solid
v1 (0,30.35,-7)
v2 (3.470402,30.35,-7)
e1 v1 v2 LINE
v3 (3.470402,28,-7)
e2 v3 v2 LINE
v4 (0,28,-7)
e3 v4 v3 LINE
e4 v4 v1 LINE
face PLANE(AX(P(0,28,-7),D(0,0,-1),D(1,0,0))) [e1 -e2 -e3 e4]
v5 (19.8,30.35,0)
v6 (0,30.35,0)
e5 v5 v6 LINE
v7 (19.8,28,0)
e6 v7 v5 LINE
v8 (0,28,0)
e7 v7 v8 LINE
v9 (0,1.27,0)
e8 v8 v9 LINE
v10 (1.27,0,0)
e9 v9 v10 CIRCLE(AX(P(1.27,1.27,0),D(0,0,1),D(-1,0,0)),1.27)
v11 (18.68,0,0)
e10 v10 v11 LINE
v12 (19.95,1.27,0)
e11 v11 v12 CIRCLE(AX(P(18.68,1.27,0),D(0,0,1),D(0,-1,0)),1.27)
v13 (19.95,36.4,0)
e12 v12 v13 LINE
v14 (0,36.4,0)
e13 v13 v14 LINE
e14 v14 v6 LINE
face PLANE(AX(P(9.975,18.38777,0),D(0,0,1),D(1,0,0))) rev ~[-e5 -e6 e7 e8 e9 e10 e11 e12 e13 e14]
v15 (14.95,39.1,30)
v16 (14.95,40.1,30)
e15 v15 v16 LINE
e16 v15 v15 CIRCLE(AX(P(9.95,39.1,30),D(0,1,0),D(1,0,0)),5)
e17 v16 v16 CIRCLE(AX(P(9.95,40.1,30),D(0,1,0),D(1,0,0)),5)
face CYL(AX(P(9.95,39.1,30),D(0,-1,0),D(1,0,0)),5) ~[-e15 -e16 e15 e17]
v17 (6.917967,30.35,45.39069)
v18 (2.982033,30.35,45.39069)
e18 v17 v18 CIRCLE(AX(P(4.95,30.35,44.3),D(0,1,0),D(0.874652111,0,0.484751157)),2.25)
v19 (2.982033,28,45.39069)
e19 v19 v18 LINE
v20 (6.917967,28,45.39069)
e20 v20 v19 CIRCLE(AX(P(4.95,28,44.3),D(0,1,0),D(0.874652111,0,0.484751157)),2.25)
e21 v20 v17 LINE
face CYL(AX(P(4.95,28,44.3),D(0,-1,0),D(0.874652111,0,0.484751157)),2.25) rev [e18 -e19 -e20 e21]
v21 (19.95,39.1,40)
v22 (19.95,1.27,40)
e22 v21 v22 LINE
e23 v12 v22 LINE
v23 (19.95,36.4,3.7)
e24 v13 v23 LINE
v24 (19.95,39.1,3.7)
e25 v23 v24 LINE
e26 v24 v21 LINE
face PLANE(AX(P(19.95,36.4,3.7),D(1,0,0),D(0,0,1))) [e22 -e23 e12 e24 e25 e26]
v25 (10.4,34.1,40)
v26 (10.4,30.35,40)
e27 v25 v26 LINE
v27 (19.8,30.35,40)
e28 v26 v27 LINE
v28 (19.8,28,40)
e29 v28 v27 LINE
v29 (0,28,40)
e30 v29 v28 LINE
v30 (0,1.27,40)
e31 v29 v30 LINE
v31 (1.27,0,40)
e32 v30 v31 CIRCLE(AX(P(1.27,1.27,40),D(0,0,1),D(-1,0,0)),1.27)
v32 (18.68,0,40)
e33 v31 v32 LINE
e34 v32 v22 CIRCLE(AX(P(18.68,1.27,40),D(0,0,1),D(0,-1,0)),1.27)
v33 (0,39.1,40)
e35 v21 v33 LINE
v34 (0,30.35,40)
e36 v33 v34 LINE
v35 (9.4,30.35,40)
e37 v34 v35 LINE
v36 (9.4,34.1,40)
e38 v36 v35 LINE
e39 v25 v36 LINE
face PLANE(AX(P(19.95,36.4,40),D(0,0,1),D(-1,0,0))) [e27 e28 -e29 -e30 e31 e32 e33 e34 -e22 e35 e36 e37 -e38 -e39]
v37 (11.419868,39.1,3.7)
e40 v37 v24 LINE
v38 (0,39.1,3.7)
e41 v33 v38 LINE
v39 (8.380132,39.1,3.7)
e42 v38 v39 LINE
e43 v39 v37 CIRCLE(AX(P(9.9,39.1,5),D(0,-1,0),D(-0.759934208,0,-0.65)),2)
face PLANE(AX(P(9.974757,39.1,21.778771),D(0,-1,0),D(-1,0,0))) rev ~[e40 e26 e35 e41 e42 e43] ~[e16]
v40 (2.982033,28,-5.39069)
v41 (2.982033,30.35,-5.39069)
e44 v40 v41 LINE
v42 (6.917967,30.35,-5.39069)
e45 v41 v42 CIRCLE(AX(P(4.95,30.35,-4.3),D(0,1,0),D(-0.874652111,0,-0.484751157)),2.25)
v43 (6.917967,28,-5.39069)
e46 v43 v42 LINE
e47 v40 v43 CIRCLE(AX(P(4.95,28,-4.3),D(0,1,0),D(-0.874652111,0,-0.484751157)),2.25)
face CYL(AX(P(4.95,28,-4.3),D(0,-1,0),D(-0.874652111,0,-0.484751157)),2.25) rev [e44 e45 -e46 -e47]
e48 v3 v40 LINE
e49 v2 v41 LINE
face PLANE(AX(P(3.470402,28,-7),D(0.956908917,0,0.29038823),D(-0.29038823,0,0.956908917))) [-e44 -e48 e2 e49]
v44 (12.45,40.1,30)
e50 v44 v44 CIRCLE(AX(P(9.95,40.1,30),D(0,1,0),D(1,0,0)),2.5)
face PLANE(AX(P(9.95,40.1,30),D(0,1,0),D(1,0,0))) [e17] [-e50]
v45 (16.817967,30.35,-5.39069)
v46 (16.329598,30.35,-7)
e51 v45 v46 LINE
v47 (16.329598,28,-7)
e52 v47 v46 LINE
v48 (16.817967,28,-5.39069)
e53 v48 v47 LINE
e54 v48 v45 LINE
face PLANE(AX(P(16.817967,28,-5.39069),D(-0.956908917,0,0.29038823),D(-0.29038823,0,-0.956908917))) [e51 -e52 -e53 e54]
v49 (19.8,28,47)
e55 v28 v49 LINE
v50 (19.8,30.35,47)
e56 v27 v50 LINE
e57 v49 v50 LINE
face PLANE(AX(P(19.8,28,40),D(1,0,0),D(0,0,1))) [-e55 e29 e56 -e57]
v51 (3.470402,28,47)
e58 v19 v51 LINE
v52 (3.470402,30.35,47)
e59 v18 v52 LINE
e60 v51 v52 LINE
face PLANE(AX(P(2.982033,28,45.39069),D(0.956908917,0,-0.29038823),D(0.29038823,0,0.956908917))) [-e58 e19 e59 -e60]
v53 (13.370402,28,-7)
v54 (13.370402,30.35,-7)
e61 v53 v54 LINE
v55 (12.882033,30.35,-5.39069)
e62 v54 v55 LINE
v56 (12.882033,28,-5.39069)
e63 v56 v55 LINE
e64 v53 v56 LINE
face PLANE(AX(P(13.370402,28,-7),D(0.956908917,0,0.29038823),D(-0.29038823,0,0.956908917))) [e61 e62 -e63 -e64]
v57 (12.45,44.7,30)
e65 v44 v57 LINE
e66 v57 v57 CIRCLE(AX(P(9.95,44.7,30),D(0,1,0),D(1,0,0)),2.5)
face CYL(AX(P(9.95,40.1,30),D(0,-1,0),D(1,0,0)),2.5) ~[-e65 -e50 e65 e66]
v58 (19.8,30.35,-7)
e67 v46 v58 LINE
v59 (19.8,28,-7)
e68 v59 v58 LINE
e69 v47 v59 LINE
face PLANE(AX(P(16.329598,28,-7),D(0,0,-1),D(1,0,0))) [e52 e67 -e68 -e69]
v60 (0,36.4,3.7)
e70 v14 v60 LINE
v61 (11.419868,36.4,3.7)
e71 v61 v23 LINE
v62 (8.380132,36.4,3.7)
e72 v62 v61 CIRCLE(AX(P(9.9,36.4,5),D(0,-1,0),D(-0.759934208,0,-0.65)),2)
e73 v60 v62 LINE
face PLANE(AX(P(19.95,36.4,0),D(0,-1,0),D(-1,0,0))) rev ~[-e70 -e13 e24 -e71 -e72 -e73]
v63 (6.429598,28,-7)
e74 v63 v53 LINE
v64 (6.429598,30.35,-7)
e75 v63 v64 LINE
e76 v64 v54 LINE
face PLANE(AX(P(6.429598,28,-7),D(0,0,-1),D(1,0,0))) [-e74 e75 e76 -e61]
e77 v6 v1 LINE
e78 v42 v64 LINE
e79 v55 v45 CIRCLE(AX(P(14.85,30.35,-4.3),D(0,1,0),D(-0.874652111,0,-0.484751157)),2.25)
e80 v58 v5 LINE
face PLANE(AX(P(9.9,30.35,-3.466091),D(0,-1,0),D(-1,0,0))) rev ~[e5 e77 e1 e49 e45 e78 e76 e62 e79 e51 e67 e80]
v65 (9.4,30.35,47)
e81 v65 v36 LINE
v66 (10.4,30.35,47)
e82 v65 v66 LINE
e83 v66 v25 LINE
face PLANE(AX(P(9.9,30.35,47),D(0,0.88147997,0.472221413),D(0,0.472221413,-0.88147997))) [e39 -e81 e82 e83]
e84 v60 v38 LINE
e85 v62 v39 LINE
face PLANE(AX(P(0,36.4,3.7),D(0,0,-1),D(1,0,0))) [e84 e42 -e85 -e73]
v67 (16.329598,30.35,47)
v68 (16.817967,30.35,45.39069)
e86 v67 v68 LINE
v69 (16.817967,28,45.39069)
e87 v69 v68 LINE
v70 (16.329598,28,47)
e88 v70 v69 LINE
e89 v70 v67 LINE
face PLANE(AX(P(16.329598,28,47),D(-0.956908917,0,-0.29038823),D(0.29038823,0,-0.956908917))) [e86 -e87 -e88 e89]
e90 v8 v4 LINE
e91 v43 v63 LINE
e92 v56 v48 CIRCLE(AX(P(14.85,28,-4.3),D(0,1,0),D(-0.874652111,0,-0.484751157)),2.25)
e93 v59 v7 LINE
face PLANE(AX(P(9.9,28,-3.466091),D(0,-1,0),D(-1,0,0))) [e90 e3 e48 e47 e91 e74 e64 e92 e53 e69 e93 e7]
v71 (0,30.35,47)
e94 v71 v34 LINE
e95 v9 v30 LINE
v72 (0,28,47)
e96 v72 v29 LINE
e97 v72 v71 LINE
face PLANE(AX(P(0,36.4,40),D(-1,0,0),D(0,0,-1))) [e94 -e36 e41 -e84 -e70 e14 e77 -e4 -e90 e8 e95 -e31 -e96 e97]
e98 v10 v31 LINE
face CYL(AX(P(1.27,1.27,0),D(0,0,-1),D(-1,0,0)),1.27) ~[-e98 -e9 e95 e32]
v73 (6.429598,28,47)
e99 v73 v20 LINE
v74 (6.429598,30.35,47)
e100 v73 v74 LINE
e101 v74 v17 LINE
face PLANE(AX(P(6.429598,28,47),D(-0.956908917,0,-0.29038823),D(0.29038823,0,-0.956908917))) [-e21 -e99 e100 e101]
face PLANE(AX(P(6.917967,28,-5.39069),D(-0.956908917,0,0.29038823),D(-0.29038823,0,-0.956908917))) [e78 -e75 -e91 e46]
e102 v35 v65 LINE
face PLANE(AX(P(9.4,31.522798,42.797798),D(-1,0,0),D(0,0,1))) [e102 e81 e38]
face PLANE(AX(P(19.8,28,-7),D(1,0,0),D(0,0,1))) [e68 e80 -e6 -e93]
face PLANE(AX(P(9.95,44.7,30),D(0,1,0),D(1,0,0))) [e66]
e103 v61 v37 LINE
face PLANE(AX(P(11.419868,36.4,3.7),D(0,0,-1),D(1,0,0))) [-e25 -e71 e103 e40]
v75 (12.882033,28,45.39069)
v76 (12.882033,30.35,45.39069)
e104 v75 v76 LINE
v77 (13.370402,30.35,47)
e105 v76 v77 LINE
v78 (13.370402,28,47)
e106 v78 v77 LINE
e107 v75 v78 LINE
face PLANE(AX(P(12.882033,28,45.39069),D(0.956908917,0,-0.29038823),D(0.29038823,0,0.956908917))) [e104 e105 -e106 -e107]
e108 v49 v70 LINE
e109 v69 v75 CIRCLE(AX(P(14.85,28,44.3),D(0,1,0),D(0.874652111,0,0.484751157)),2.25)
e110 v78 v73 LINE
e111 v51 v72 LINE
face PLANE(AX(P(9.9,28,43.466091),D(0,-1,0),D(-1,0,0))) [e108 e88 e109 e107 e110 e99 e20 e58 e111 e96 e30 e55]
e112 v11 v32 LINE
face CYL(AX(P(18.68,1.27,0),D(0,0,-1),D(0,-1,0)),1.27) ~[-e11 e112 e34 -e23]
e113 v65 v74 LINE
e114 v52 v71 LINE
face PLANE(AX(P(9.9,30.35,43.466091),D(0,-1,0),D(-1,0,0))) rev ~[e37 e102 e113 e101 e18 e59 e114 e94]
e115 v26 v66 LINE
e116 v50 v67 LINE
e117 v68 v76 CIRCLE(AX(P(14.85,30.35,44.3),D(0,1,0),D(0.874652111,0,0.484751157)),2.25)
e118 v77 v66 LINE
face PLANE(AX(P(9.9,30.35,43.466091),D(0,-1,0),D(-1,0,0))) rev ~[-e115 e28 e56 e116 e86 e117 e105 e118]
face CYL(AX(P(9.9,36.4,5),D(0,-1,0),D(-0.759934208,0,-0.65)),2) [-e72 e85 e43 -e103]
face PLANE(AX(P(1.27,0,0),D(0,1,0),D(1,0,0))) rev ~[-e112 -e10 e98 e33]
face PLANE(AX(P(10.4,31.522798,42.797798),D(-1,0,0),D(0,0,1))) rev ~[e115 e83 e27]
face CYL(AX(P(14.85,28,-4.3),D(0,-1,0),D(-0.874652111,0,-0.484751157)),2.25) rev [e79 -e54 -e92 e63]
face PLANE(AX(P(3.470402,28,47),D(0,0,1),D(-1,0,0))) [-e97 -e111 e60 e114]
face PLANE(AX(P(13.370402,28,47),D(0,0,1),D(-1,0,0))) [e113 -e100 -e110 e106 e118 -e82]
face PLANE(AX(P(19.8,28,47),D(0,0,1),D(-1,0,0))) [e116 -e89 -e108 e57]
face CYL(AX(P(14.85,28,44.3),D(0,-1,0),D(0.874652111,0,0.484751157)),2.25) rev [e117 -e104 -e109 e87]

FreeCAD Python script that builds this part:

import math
import FreeCAD as App
import Part
import Sketcher

doc = App.newDocument("Part")
body = doc.addObject("PartDesign::Body", "Body")

# Sketch on XY plane
sketch1 = body.newObject("Sketcher::SketchObject", "Sketch")
sketch1.AttachmentSupport = (doc.getObject("XY_Plane"), [""])
sketch1.MapMode = "FlatFace"
sketch1.addGeometry([
    Part.LineSegment(App.Vector(1.3, 0, 0), App.Vector(18.7, 0, 0)),  # 0
    Part.ArcOfCircle(Part.Circle(App.Vector(18.7, 1.3, 0), App.Vector(0, 0, 1), 1.3), math.radians(-90), math.radians(0)),  # 1
    Part.LineSegment(App.Vector(19.9, 1.3, 0), App.Vector(19.9, 36.4, 0)),  # 2
    Part.LineSegment(App.Vector(19.9, 36.4, 0), App.Vector(0, 36.4, 0)),  # 3
    Part.LineSegment(App.Vector(0, 36.4, 0), App.Vector(0, 1.3, 0)),  # 4
    Part.ArcOfCircle(Part.Circle(App.Vector(1.3, 1.3, 0), App.Vector(0, 0, 1), 1.3), math.radians(180), math.radians(270)),  # 5
], False)
sketch1.addConstraint([
    Sketcher.Constraint("Tangent", 0, 2, 1, 1),
    Sketcher.Constraint("Tangent", 1, 2, 2, 1),
    Sketcher.Constraint("Coincident", 2, 2, 3, 1),
    Sketcher.Constraint("Coincident", 3, 2, 4, 1),
    Sketcher.Constraint("Tangent", 4, 2, 5, 1),
    Sketcher.Constraint("Tangent", 5, 2, 0, 1),
    Sketcher.Constraint("Horizontal", 0),
    Sketcher.Constraint("Vertical", 2),
    Sketcher.Constraint("Horizontal", 3),
    Sketcher.Constraint("Vertical", 4),
    Sketcher.Constraint("Equal", 1, 5),
    Sketcher.Constraint("PointOnObject", 0, 2, -1),
    Sketcher.Constraint("PointOnObject", 3, 2, -2),
    Sketcher.Constraint("Radius", 1, 1.27),
    Sketcher.Constraint("DistanceX", 0, 1, 0, 2, 17.41),
    Sketcher.Constraint("DistanceY", 2, 1, 2, 2, 35.13),
])
pad1 = body.newObject("PartDesign::Pad", "Pad")
pad1.Profile = sketch1
pad1.Length = 40

# Sketch on XZ plane
sketch2 = body.newObject("Sketcher::SketchObject", "Sketch001")
sketch2.AttachmentSupport = (doc.getObject("XZ_Plane"), [""])
sketch2.MapMode = "FlatFace"
sketch2.AttachmentOffset = App.Placement(App.Vector(0, 0, -28), App.Rotation())
sketch2.addGeometry([
    Part.LineSegment(App.Vector(0, 0, 0), App.Vector(0, -7, 0)),  # 0
    Part.LineSegment(App.Vector(0, -7, 0), App.Vector(3.5, -7, 0)),  # 1
    Part.LineSegment(App.Vector(3.5, -7, 0), App.Vector(3, -5.4, 0)),  # 2
    Part.ArcOfCircle(Part.Circle(App.Vector(5, -4.3, 0), App.Vector(0, 0, 1), 2.2), math.radians(-29), math.radians(209)),  # 3
    Part.LineSegment(App.Vector(6.9, -5.4, 0), App.Vector(6.4, -7, 0)),  # 4
    Part.LineSegment(App.Vector(6.4, -7, 0), App.Vector(13.4, -7, 0)),  # 5
    Part.LineSegment(App.Vector(13.4, -7, 0), App.Vector(12.9, -5.4, 0)),  # 6
    Part.ArcOfCircle(Part.Circle(App.Vector(14.8, -4.3, 0), App.Vector(0, 0, 1), 2.2), math.radians(-29), math.radians(209)),  # 7
    Part.LineSegment(App.Vector(16.8, -5.4, 0), App.Vector(16.3, -7, 0)),  # 8
    Part.LineSegment(App.Vector(16.3, -7, 0), App.Vector(19.8, -7, 0)),  # 9
    Part.LineSegment(App.Vector(19.8, -7, 0), App.Vector(19.8, 0, 0)),  # 10
    Part.LineSegment(App.Vector(19.8, 0, 0), App.Vector(0, 0, 0)),  # 11
    Part.LineSegment(App.Vector(16.3, 47, 0), App.Vector(16.8, 45.4, 0)),  # 12
    Part.ArcOfCircle(Part.Circle(App.Vector(14.8, 44.3, 0), App.Vector(0, 0, 1), 2.2), math.radians(151), math.radians(389)),  # 13
    Part.LineSegment(App.Vector(12.9, 45.4, 0), App.Vector(13.4, 47, 0)),  # 14
    Part.LineSegment(App.Vector(13.4, 47, 0), App.Vector(6.4, 47, 0)),  # 15
    Part.LineSegment(App.Vector(6.4, 47, 0), App.Vector(6.9, 45.4, 0)),  # 16
    Part.ArcOfCircle(Part.Circle(App.Vector(5, 44.3, 0), App.Vector(0, 0, 1), 2.2), math.radians(151), math.radians(389)),  # 17
    Part.LineSegment(App.Vector(3, 45.4, 0), App.Vector(3.5, 47, 0)),  # 18
    Part.LineSegment(App.Vector(3.5, 47, 0), App.Vector(0, 47, 0)),  # 19
    Part.LineSegment(App.Vector(0, 47, 0), App.Vector(0, 40, 0)),  # 20
    Part.LineSegment(App.Vector(0, 40, 0), App.Vector(19.8, 40, 0)),  # 21
    Part.LineSegment(App.Vector(19.8, 40, 0), App.Vector(19.8, 47, 0)),  # 22
    Part.LineSegment(App.Vector(19.8, 47, 0), App.Vector(16.3, 47, 0)),  # 23
], False)
sketch2.addConstraint([
    Sketcher.Constraint("Coincident", 0, 2, 1, 1),
    Sketcher.Constraint("Coincident", 1, 2, 2, 1),
    Sketcher.Constraint("Coincident", 2, 2, 3, 2),
    Sketcher.Constraint("Coincident", 3, 1, 4, 1),
    Sketcher.Constraint("Coincident", 4, 2, 5, 1),
    Sketcher.Constraint("Coincident", 5, 2, 6, 1),
    Sketcher.Constraint("Coincident", 6, 2, 7, 2),
    Sketcher.Constraint("Coincident", 7, 1, 8, 1),
    Sketcher.Constraint("Coincident", 8, 2, 9, 1),
    Sketcher.Constraint("Coincident", 9, 2, 10, 1),
    Sketcher.Constraint("Coincident", 10, 2, 11, 1),
    Sketcher.Constraint("Coincident", 11, 2, 0, 1),
    Sketcher.Constraint("Coincident", 12, 2, 13, 2),
    Sketcher.Constraint("Coincident", 13, 1, 14, 1),
    Sketcher.Constraint("Coincident", 14, 2, 15, 1),
    Sketcher.Constraint("Coincident", 15, 2, 16, 1),
    Sketcher.Constraint("Coincident", 16, 2, 17, 2),
    Sketcher.Constraint("Coincident", 17, 1, 18, 1),
    Sketcher.Constraint("Coincident", 18, 2, 19, 1),
    Sketcher.Constraint("Coincident", 19, 2, 20, 1),
    Sketcher.Constraint("Coincident", 20, 2, 21, 1),
    Sketcher.Constraint("Coincident", 21, 2, 22, 1),
    Sketcher.Constraint("Coincident", 22, 2, 23, 1),
    Sketcher.Constraint("Coincident", 23, 2, 12, 1),
    Sketcher.Constraint("Vertical", 0),
    Sketcher.Constraint("Horizontal", 1),
    Sketcher.Constraint("Horizontal", 5),
    Sketcher.Constraint("Horizontal", 9),
    Sketcher.Constraint("Vertical", 10),
    Sketcher.Constraint("Horizontal", 11),
    Sketcher.Constraint("Horizontal", 15),
    Sketcher.Constraint("Horizontal", 19),
    Sketcher.Constraint("Vertical", 20),
    Sketcher.Constraint("Horizontal", 21),
    Sketcher.Constraint("Vertical", 22),
    Sketcher.Constraint("Horizontal", 23),
    Sketcher.Constraint("Coincident", 11, 2, -1, 1),
    Sketcher.Constraint("Equal", 3, 7),
    Sketcher.Constraint("Equal", 7, 13),
    Sketcher.Constraint("Equal", 13, 17),
    Sketcher.Constraint("PointOnObject", 19, 2, -2),
    Sketcher.Constraint("Parallel", 2, 6),
    Sketcher.Constraint("Parallel", 4, 8),
    Sketcher.Constraint("Parallel", 6, 12),
    Sketcher.Constraint("Parallel", 8, 14),
    Sketcher.Constraint("Parallel", 12, 16),
    Sketcher.Constraint("Parallel", 14, 18),
    Sketcher.Constraint("Horizontal", 3, 3, 7, 3),
    Sketcher.Constraint("Horizontal", 13, 3, 17, 3),
    Sketcher.Constraint("Horizontal", 2, 2, 3, 1),
    Sketcher.Constraint("Horizontal", 1, 2, 4, 2),
    Sketcher.Constraint("Horizontal", 3, 1, 6, 2),
    Sketcher.Constraint("Horizontal", 6, 2, 7, 1),
    Sketcher.Constraint("Horizontal", 5, 2, 8, 2),
    Sketcher.Constraint("Horizontal", 12, 2, 13, 1),
    Sketcher.Constraint("Horizontal", 13, 1, 16, 2),
    Sketcher.Constraint("Horizontal", 16, 2, 17, 1),
    Sketcher.Constraint("Horizontal", 15, 2, 18, 2),
    Sketcher.Constraint("Horizontal", 19, 2, 22, 2),
    Sketcher.Constraint("Vertical", 7, 3, 13, 3),
    Sketcher.Constraint("Vertical", 3, 3, 17, 3),
    Sketcher.Constraint("Vertical", 7, 1, 12, 2),
    Sketcher.Constraint("Vertical", 5, 2, 14, 2),
    Sketcher.Constraint("Vertical", 4, 2, 15, 2),
    Sketcher.Constraint("Vertical", 10, 2, 21, 2),
    Sketcher.Constraint("Equal", 1, 9),
    Sketcher.Constraint("Equal", 10, 20),
    Sketcher.Constraint("DistanceY", 0, 2, 0, 1, 7.0),
    Sketcher.Constraint("Radius", 3, 2.25),
    Sketcher.Constraint("DistanceX", 11, 2, 11, 1, 19.8),
    Sketcher.Constraint("DistanceY", -1, 1, 14, 2, 47.0),
    Sketcher.Constraint("DistanceY", 3, 3, -1, 1, 4.3),
    Sketcher.Constraint("DistanceX", 3, 3, 7, 3, 9.9),
    Sketcher.Constraint("DistanceX", 1, 1, 1, 2, 3.470402),
    Sketcher.Constraint("Distance", 2, 1.68178),
])
pad2 = body.newObject("PartDesign::Pad", "Pad001")
pad2.Profile = sketch2
pad2.Length = 2.35
pad2.Reversed = True

# Sketch on XZ plane
sketch3 = body.newObject("Sketcher::SketchObject", "Sketch002")
sketch3.AttachmentSupport = (doc.getObject("XZ_Plane"), [""])
sketch3.MapMode = "FlatFace"
sketch3.AttachmentOffset = App.Placement(App.Vector(0, 0, -36.4), App.Rotation())
sketch3.addGeometry([
    Part.LineSegment(App.Vector(19.9, 40, 0), App.Vector(19.9, 3.7, 0)),  # 0
    Part.LineSegment(App.Vector(19.9, 3.7, 0), App.Vector(11.4, 3.7, 0)),  # 1
    Part.ArcOfCircle(Part.Circle(App.Vector(9.9, 5, 0), App.Vector(0, 0, 1), 2), math.radians(-139), math.radians(-41)),  # 2
    Part.LineSegment(App.Vector(8.4, 3.7, 0), App.Vector(0, 3.7, 0)),  # 3
    Part.LineSegment(App.Vector(0, 3.7, 0), App.Vector(0, 40, 0)),  # 4
    Part.LineSegment(App.Vector(0, 40, 0), App.Vector(19.9, 40, 0)),  # 5
], False)
sketch3.addConstraint([
    Sketcher.Constraint("Coincident", 0, 2, 1, 1),
    Sketcher.Constraint("Coincident", 1, 2, 2, 2),
    Sketcher.Constraint("Coincident", 2, 1, 3, 1),
    Sketcher.Constraint("Coincident", 3, 2, 4, 1),
    Sketcher.Constraint("Coincident", 4, 2, 5, 1),
    Sketcher.Constraint("Coincident", 5, 2, 0, 1),
    Sketcher.Constraint("Vertical", 0),
    Sketcher.Constraint("Horizontal", 1),
    Sketcher.Constraint("Horizontal", 3),
    Sketcher.Constraint("Vertical", 4),
    Sketcher.Constraint("Horizontal", 5),
    Sketcher.Constraint("PointOnObject", 3, 2, -2),
    Sketcher.Constraint("Horizontal", 1, 2, 2, 1),
    Sketcher.Constraint("Radius", 2, 2.0),
    Sketcher.Constraint("DistanceY", 0, 2, 0, 1, 36.3),
    Sketcher.Constraint("DistanceY", -1, 1, 2, 3, 5.0),
    Sketcher.Constraint("DistanceY", -1, 1, 4, 2, 40.0),
    Sketcher.Constraint("DistanceX", 5, 1, 5, 2, 19.95),
    Sketcher.Constraint("DistanceX", -1, 1, 2, 3, 9.9),
])
pad3 = body.newObject("PartDesign::Pad", "Pad002")
pad3.Profile = sketch3
pad3.Length = 2.7
pad3.Reversed = True

# Sketch on XZ plane
sketch4 = body.newObject("Sketcher::SketchObject", "Sketch003")
sketch4.AttachmentSupport = (doc.getObject("XZ_Plane"), [""])
sketch4.MapMode = "FlatFace"
sketch4.AttachmentOffset = App.Placement(App.Vector(0, 0, -39.1), App.Rotation())
sketch4.addGeometry(Part.Circle(App.Vector(10, 30, 0), App.Vector(0, 0, 1), 5), False)
sketch4.addConstraint([
    Sketcher.Constraint("Diameter", 0, 10.0),
    Sketcher.Constraint("DistanceY", -1, 1, 0, 3, 30.0),
    Sketcher.Constraint("DistanceX", -1, 1, 0, 3, 9.95),
])
pad4 = body.newObject("PartDesign::Pad", "Pad003")
pad4.Profile = sketch4
pad4.Length = 1
pad4.Reversed = True

# Sketch on XZ plane
sketch5 = body.newObject("Sketcher::SketchObject", "Sketch004")
sketch5.AttachmentSupport = (doc.getObject("XZ_Plane"), [""])
sketch5.MapMode = "FlatFace"
sketch5.AttachmentOffset = App.Placement(App.Vector(0, 0, -40.1), App.Rotation())
sketch5.addGeometry(Part.Circle(App.Vector(9.9, 30, 0), App.Vector(0, 0, 1), 2.5), False)
sketch5.addConstraint([
    Sketcher.Constraint("Diameter", 0, 5.0),
    Sketcher.Constraint("DistanceY", -1, 1, 0, 3, 30.0),
    Sketcher.Constraint("DistanceX", -1, 1, 0, 3, 9.95),
])
pad5 = body.newObject("PartDesign::Pad", "Pad004")
pad5.Profile = sketch5
pad5.Length = 4.6
pad5.Reversed = True

# Sketch on YZ plane
sketch6 = body.newObject("Sketcher::SketchObject", "Sketch005")
sketch6.AttachmentSupport = (doc.getObject("YZ_Plane"), [""])
sketch6.MapMode = "FlatFace"
sketch6.AttachmentOffset = App.Placement(App.Vector(0, 0, 9.9), App.Rotation())
sketch6.addGeometry([
    Part.LineSegment(App.Vector(30.4, 47, 0), App.Vector(34.1, 40, 0)),
    Part.LineSegment(App.Vector(34.1, 40, 0), App.Vector(30.4, 40, 0)),
    Part.LineSegment(App.Vector(30.4, 40, 0), App.Vector(30.4, 47, 0)),
], False)
sketch6.addConstraint([
    Sketcher.Constraint("Coincident", 0, 2, 1, 1),
    Sketcher.Constraint("Coincident", 1, 2, 2, 1),
    Sketcher.Constraint("Coincident", 2, 2, 0, 1),
    Sketcher.Constraint("Horizontal", 1),
    Sketcher.Constraint("Vertical", 2),
    Sketcher.Constraint("DistanceY", 2, 1, 2, 2, 7.0),
    Sketcher.Constraint("DistanceY", -1, 1, 0, 2, 40.0),
    Sketcher.Constraint("DistanceX", 1, 2, 1, 1, 3.75),
    Sketcher.Constraint("DistanceX", -1, 1, 0, 2, 34.1),
])
pad6 = body.newObject("PartDesign::Pad", "Pad005")
pad6.Profile = sketch6
pad6.Length = 1
pad6.Midplane = True

doc.recompute()
